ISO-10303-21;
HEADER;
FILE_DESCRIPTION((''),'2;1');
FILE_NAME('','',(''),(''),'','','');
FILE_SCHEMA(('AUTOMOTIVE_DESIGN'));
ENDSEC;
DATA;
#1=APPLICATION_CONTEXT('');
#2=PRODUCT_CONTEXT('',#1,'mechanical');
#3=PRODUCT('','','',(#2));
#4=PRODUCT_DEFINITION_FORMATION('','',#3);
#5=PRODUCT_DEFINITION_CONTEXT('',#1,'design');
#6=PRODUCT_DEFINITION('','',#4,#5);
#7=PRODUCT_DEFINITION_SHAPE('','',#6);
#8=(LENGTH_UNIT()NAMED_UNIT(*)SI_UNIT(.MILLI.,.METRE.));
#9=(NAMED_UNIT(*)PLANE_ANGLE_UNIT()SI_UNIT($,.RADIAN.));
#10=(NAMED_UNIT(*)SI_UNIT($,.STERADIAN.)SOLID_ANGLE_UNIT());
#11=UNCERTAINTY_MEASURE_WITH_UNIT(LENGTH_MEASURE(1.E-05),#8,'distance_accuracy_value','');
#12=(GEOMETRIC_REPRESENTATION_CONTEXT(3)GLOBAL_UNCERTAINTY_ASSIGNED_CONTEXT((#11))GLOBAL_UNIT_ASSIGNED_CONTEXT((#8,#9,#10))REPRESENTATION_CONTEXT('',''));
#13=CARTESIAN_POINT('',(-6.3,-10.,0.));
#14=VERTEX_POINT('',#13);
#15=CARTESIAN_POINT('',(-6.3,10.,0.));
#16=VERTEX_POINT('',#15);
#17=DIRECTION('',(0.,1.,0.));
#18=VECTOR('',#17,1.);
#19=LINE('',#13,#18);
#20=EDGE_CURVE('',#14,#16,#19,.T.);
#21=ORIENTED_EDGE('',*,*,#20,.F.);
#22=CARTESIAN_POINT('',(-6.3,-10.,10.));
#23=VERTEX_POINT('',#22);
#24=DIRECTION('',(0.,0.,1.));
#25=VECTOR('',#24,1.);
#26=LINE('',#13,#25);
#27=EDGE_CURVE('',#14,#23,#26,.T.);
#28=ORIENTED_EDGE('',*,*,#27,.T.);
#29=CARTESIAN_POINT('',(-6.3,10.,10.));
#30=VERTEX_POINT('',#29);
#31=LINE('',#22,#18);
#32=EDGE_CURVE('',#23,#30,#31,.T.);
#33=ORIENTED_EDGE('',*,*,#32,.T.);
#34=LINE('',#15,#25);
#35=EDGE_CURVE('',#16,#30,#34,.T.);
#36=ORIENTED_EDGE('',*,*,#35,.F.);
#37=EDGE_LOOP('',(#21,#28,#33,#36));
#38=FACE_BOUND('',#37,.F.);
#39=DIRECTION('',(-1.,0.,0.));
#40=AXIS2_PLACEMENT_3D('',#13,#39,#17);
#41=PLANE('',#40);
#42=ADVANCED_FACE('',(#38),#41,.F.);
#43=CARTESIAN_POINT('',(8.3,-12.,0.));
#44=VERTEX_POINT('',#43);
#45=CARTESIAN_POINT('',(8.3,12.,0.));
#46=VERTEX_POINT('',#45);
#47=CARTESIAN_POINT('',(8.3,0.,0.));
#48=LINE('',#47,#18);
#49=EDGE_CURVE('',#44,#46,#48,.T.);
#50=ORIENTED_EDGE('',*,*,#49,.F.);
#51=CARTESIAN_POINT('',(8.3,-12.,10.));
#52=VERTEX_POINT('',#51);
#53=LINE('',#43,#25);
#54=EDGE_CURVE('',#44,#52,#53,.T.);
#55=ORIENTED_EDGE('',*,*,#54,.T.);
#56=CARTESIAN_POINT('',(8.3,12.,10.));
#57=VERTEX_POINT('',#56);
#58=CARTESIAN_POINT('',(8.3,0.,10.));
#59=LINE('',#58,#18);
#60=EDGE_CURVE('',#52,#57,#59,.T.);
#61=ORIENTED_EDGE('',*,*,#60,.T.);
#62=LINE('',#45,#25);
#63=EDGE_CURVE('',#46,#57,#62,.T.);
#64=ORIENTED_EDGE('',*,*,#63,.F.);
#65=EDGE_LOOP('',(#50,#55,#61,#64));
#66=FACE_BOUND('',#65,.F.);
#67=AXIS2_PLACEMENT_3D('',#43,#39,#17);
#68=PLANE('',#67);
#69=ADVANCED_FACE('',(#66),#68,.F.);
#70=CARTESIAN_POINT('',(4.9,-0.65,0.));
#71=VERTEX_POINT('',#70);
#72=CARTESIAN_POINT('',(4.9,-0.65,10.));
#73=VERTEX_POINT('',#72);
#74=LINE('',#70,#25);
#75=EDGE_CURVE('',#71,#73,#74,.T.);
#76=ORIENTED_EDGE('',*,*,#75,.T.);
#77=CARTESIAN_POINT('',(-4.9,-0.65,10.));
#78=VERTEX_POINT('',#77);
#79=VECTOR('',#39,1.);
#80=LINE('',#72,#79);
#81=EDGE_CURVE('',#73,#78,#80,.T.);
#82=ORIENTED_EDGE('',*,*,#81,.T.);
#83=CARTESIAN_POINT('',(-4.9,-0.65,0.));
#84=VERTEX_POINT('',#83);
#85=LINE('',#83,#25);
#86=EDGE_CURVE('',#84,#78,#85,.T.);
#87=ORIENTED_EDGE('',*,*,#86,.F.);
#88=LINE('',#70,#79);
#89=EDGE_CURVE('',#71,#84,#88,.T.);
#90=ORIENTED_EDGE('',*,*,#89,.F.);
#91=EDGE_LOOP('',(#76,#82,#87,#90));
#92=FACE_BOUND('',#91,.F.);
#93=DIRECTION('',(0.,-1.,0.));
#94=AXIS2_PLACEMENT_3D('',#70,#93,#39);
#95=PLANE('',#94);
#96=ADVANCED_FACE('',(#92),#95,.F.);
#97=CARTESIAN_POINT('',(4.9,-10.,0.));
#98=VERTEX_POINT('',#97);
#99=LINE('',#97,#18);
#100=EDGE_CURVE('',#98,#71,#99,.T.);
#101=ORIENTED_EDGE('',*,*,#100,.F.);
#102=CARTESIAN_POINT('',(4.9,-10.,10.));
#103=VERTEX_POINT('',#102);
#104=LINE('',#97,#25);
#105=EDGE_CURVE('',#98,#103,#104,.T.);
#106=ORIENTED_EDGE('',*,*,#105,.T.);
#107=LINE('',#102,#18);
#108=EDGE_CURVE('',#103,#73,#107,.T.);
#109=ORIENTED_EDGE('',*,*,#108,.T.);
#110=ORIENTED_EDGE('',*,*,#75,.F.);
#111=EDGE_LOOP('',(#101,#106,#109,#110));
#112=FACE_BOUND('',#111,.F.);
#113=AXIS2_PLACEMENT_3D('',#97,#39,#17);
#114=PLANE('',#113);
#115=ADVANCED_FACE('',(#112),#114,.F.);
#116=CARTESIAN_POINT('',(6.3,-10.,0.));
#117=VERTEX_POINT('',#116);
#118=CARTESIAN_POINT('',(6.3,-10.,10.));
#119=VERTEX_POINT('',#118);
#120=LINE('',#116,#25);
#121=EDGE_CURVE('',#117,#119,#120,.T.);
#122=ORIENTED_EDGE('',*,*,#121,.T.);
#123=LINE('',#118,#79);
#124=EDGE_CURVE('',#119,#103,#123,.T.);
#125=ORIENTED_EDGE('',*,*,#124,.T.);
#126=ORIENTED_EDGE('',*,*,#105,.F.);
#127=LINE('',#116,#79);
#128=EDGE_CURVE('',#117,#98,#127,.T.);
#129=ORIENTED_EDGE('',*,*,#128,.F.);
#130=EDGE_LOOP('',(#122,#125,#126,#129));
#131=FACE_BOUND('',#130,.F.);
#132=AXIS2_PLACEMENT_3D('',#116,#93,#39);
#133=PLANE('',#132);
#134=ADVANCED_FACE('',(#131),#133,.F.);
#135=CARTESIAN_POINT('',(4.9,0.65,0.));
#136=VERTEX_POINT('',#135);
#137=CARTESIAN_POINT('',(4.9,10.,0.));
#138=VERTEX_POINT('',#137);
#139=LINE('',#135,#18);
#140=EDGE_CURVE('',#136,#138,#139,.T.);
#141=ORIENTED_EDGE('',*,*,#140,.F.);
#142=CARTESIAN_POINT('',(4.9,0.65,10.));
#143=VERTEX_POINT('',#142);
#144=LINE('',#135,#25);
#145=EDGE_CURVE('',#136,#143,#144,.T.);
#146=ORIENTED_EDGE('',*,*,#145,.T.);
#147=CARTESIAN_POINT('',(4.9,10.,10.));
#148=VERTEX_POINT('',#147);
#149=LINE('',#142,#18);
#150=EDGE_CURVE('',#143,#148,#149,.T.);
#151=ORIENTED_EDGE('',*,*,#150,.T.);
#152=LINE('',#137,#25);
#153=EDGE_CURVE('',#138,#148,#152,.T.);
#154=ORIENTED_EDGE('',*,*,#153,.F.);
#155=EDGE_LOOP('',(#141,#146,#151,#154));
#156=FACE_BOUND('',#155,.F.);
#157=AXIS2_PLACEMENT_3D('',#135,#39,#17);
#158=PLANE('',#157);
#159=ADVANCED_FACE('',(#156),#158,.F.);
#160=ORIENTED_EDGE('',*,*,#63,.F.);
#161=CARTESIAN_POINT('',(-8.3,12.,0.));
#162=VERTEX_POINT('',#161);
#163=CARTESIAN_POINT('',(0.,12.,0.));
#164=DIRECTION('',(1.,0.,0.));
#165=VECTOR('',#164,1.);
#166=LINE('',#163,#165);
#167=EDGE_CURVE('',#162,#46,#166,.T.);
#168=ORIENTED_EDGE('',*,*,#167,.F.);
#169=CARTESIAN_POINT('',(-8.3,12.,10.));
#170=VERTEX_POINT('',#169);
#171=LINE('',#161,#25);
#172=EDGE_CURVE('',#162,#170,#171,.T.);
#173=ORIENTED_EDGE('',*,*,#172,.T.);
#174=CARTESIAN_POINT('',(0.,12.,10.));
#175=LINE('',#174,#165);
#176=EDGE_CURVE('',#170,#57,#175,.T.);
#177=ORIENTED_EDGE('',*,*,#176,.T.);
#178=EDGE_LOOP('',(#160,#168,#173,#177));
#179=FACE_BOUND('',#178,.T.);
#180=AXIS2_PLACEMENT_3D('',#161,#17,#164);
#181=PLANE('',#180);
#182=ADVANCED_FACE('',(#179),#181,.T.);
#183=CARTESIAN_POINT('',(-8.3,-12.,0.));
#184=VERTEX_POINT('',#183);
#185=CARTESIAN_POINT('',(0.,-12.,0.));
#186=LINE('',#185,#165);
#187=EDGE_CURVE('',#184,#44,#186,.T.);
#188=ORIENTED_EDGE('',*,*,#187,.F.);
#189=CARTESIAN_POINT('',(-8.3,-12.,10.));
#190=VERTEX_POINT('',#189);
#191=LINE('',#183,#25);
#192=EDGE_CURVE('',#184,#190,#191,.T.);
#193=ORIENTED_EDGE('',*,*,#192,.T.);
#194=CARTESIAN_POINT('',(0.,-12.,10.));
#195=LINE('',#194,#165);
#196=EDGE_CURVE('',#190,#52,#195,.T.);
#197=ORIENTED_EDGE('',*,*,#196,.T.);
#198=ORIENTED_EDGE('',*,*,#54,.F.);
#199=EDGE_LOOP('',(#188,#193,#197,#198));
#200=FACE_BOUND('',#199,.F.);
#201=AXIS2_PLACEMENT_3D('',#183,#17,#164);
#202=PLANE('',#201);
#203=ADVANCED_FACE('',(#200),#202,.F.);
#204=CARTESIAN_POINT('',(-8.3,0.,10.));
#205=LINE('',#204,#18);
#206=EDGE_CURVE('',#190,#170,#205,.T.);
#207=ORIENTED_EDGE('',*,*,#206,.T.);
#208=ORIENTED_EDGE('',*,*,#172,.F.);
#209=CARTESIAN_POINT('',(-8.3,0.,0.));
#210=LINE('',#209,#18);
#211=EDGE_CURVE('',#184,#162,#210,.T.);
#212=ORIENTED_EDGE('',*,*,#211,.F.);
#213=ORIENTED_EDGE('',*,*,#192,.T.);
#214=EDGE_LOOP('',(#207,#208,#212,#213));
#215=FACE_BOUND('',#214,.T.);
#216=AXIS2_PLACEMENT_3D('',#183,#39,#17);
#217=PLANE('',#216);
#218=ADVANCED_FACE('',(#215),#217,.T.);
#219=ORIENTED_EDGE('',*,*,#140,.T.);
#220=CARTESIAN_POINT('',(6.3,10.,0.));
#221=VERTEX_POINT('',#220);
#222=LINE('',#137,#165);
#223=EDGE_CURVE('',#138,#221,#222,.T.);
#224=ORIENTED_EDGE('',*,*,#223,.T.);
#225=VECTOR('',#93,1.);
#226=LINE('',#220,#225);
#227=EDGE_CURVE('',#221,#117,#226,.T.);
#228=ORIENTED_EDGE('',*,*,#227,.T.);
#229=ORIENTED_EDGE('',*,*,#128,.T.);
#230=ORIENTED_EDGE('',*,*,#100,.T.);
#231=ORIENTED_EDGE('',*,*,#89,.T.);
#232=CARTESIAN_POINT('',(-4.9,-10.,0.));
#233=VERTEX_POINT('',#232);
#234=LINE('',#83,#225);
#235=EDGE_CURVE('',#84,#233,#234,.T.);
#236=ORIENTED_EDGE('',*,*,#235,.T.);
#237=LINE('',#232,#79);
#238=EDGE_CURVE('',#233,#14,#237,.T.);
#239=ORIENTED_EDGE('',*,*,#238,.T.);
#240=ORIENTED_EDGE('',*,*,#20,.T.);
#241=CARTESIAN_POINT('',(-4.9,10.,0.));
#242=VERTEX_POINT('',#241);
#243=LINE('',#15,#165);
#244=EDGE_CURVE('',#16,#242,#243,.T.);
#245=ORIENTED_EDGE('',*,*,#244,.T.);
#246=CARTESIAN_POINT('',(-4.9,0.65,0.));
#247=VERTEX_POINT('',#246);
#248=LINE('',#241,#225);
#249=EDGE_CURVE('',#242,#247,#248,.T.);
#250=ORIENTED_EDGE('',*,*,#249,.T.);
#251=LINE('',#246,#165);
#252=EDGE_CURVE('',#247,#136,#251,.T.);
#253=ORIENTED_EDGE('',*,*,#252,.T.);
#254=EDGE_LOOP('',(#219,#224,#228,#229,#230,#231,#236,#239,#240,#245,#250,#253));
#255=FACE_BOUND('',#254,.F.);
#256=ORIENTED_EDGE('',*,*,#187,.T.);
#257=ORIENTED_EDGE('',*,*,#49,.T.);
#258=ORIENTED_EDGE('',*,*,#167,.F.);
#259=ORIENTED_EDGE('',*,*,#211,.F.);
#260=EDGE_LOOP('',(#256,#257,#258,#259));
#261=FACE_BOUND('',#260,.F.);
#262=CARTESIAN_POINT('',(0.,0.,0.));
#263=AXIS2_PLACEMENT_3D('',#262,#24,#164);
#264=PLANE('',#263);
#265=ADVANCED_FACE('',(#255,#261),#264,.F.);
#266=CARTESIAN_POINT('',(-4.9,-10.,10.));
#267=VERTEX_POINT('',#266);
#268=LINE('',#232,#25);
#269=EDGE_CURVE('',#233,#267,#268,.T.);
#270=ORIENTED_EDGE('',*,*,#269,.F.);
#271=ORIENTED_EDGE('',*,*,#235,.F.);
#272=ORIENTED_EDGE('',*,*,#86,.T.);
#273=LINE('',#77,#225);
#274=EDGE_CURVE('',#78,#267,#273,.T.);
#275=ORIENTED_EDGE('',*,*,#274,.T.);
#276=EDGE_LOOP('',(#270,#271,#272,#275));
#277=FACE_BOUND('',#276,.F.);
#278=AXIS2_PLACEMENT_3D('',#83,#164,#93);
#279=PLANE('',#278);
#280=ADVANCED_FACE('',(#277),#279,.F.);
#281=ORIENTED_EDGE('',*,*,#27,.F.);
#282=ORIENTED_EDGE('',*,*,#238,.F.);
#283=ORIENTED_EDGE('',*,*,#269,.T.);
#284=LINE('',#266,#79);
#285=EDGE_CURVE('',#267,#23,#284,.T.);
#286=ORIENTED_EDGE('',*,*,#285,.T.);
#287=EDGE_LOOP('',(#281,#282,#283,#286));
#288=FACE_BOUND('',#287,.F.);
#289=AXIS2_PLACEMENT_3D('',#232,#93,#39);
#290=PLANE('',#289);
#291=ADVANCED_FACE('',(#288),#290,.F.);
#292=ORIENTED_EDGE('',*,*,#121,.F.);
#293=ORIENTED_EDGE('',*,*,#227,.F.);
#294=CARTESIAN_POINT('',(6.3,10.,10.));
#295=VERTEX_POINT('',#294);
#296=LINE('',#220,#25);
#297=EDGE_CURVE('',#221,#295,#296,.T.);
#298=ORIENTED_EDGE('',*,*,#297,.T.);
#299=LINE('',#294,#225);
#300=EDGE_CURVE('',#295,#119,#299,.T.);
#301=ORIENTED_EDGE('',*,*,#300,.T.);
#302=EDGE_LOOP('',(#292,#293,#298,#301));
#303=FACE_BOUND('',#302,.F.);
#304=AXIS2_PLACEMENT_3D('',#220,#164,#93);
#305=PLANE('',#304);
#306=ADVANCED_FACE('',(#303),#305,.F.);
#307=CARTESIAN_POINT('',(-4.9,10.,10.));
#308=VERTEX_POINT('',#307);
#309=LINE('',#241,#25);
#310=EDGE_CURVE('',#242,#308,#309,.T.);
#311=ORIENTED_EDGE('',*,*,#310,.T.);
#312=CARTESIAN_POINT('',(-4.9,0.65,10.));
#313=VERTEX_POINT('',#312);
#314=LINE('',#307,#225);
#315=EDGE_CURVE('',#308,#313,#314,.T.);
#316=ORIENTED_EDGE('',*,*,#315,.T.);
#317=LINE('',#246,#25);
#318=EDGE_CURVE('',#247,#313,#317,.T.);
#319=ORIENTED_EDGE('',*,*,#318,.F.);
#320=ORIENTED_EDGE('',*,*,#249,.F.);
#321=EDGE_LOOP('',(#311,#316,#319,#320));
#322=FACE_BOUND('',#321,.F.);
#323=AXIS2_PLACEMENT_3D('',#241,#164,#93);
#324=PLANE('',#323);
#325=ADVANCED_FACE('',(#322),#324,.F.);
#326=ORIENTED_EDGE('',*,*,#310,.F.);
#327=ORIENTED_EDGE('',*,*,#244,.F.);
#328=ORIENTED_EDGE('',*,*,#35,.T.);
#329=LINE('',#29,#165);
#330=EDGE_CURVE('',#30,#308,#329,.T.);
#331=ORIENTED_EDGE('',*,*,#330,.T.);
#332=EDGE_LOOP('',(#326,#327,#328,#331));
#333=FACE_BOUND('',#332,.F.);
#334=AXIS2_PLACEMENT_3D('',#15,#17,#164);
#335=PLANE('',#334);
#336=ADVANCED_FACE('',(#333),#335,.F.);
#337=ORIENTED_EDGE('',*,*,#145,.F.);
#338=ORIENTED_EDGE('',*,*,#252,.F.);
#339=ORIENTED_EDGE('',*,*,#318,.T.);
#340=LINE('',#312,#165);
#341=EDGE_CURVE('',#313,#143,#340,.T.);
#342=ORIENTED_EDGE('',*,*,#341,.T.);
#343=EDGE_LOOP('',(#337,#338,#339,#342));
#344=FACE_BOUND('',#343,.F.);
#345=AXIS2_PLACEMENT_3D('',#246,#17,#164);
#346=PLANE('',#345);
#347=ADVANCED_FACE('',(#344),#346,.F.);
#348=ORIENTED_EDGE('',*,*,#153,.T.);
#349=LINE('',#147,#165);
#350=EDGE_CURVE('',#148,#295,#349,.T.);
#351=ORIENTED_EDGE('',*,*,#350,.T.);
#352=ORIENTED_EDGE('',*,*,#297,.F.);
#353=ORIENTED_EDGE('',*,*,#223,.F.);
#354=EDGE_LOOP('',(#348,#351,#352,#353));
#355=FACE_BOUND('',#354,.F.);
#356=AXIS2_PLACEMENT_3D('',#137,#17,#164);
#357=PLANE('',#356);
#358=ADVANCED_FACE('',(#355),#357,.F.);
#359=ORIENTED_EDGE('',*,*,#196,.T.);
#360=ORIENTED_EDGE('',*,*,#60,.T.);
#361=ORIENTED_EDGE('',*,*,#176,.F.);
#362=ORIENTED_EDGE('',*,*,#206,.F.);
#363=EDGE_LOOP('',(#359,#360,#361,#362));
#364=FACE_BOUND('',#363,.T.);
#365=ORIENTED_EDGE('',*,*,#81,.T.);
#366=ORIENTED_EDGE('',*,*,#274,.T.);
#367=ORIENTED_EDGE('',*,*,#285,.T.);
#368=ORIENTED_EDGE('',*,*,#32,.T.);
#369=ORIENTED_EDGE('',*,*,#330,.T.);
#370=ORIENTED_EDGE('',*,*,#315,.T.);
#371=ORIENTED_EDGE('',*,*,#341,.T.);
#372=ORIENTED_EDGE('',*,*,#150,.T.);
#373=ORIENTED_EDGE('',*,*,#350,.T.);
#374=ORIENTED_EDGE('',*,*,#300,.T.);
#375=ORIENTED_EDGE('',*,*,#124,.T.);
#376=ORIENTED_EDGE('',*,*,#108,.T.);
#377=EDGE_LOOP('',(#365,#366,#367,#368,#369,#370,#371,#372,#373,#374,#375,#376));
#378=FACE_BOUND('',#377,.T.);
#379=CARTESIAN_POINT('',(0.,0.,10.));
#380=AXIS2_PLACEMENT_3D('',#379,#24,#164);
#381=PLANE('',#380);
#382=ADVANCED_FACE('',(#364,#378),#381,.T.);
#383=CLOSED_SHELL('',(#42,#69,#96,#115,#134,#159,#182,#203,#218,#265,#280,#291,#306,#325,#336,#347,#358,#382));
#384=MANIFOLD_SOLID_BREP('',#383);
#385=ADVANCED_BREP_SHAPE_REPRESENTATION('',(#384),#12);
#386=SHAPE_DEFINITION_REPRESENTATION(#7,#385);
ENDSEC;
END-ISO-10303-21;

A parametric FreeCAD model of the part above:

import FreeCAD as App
import Part
import Sketcher
from FreeCAD import Vector

doc = App.newDocument("Part")
params = doc.addObject("Spreadsheet::Sheet", "Params")
for row, (alias, value) in enumerate([
    ("sketch1_height", "24 mm"),
    ("sketch1_height2", "20 mm"),
    ("sketch1_width", "16.6 mm"),
    ("sketch1_width2", "1.4 mm"),
    ("sketch1_width3", "9.8 mm"),
    ("pad1_length", "10 mm"),
], start=1):
    params.set(f"A{row}", alias)
    params.set(f"B{row}", "=" + value)
    params.setAlias(f"B{row}", alias)

body = doc.addObject("PartDesign::Body", "Body")

sketch1 = doc.addObject("Sketcher::SketchObject", "Sketch")
body.addObject(sketch1)
sketch1.AttachmentSupport = (doc.XY_Plane, [""])
sketch1.MapMode = "FlatFace"
sketch1.addGeometry([
    Part.LineSegment(Vector(-8.3, 12, 0), Vector(-8.3, -12, 0)),
    Part.LineSegment(Vector(-8.3, -12, 0), Vector(8.3, -12, 0)),
    Part.LineSegment(Vector(8.3, -12, 0), Vector(8.3, 12, 0)),
    Part.LineSegment(Vector(8.3, 12, 0), Vector(-8.3, 12, 0)),
    Part.LineSegment(Vector(-6.3, 10, 0), Vector(-4.9, 10, 0)),
    Part.LineSegment(Vector(-4.9, 10, 0), Vector(-4.9, 0.7, 0)),
    Part.LineSegment(Vector(-4.9, 0.7, 0), Vector(4.9, 0.7, 0)),
    Part.LineSegment(Vector(4.9, 0.7, 0), Vector(4.9, 10, 0)),
    Part.LineSegment(Vector(4.9, 10, 0), Vector(6.3, 10, 0)),
    Part.LineSegment(Vector(6.3, 10, 0), Vector(6.3, -10, 0)),
    Part.LineSegment(Vector(6.3, -10, 0), Vector(4.9, -10, 0)),
    Part.LineSegment(Vector(4.9, -10, 0), Vector(4.9, -0.7, 0)),
    Part.LineSegment(Vector(4.9, -0.7, 0), Vector(-4.9, -0.7, 0)),
    Part.LineSegment(Vector(-4.9, -0.7, 0), Vector(-4.9, -10, 0)),
    Part.LineSegment(Vector(-4.9, -10, 0), Vector(-6.3, -10, 0)),
    Part.LineSegment(Vector(-6.3, -10, 0), Vector(-6.3, 10, 0)),
], False)
sketch1.addConstraint([
    Sketcher.Constraint("Coincident", 0, 2, 1, 1),
    Sketcher.Constraint("Coincident", 1, 2, 2, 1),
    Sketcher.Constraint("Coincident", 2, 2, 3, 1),
    Sketcher.Constraint("Coincident", 3, 2, 0, 1),
    Sketcher.Constraint("Coincident", 4, 2, 5, 1),
    Sketcher.Constraint("Coincident", 5, 2, 6, 1),
    Sketcher.Constraint("Coincident", 6, 2, 7, 1),
    Sketcher.Constraint("Coincident", 7, 2, 8, 1),
    Sketcher.Constraint("Coincident", 8, 2, 9, 1),
    Sketcher.Constraint("Coincident", 9, 2, 10, 1),
    Sketcher.Constraint("Coincident", 10, 2, 11, 1),
    Sketcher.Constraint("Coincident", 11, 2, 12, 1),
    Sketcher.Constraint("Coincident", 12, 2, 13, 1),
    Sketcher.Constraint("Coincident", 13, 2, 14, 1),
    Sketcher.Constraint("Coincident", 14, 2, 15, 1),
    Sketcher.Constraint("Coincident", 15, 2, 4, 1),
    Sketcher.Constraint("Vertical", 0),
    Sketcher.Constraint("Horizontal", 1),
    Sketcher.Constraint("Vertical", 2),
    Sketcher.Constraint("Horizontal", 3),
    Sketcher.Constraint("Horizontal", 4),
    Sketcher.Constraint("Vertical", 5),
    Sketcher.Constraint("Horizontal", 6),
    Sketcher.Constraint("Vertical", 7),
    Sketcher.Constraint("Horizontal", 8),
    Sketcher.Constraint("Vertical", 9),
    Sketcher.Constraint("Horizontal", 10),
    Sketcher.Constraint("Vertical", 11),
    Sketcher.Constraint("Horizontal", 12),
    Sketcher.Constraint("Vertical", 13),
    Sketcher.Constraint("Horizontal", 14),
    Sketcher.Constraint("Vertical", 15),
    Sketcher.Constraint("Symmetric", 0, 2, 2, 2, -1, 1),
    Sketcher.Constraint("Symmetric", 4, 2, 10, 2, -1, 1),
    Sketcher.Constraint("Symmetric", 6, 2, 12, 2, -1, 1),
    Sketcher.Constraint("Symmetric", 8, 2, 14, 2, -1, 1),
    Sketcher.Constraint("Symmetric", 4, 2, 7, 2, -2),
    Sketcher.Constraint("DistanceY", 0, 2, 0, 1, 24.0),
    Sketcher.Constraint("DistanceY", 9, 2, 9, 1, 20.0),
    Sketcher.Constraint("DistanceX", 1, 1, 1, 2, 16.6),
    Sketcher.Constraint("DistanceX", 4, 1, 4, 2, 1.4),
    Sketcher.Constraint("DistanceX", 6, 1, 6, 2, 9.8),
    Sketcher.Constraint("DistanceY", 5, 2, 5, 1, 9.35),
])
sketch1.setExpression("Constraints[37]", "Params.sketch1_height")
sketch1.setExpression("Constraints[38]", "Params.sketch1_height2")
sketch1.setExpression("Constraints[39]", "Params.sketch1_width")
sketch1.setExpression("Constraints[40]", "Params.sketch1_width2")
sketch1.setExpression("Constraints[41]", "Params.sketch1_width3")
pad1 = doc.addObject("PartDesign::Pad", "Pad")
body.addObject(pad1)
pad1.Profile = sketch1
pad1.setExpression("Length", "Params.pad1_length")

doc.recompute()
